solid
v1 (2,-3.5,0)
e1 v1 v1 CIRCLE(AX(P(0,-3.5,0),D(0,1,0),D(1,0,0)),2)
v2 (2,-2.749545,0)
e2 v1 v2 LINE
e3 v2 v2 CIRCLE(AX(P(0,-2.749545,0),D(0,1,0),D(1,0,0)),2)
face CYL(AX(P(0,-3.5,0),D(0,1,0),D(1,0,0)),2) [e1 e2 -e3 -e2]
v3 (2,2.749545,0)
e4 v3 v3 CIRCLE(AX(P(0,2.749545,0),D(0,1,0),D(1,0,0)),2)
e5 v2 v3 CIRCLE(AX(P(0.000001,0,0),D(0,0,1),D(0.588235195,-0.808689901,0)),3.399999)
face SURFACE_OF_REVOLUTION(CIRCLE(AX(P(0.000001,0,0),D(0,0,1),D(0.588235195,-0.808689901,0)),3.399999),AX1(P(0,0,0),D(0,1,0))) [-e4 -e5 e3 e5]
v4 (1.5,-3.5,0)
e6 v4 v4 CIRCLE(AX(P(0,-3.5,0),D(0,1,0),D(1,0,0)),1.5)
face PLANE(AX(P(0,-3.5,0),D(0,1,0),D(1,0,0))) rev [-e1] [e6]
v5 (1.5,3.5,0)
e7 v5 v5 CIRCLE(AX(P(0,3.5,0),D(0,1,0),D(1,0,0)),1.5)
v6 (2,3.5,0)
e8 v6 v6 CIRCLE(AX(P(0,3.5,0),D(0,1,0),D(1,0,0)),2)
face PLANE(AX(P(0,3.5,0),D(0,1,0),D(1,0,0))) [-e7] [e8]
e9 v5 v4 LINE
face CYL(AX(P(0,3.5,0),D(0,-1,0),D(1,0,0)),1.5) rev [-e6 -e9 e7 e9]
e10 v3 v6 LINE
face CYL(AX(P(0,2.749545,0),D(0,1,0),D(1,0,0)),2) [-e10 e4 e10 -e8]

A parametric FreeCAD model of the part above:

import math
import FreeCAD as App
import Part
import Sketcher

doc = App.newDocument("Part")
body = doc.addObject("PartDesign::Body", "Body")

# Sketch on XY plane
sketch1 = doc.addObject("Sketcher::SketchObject", "Sketch")
body.addObject(sketch1)
sketch1.AttachmentSupport = (doc.XY_Plane, [""])
sketch1.MapMode = "FlatFace"
sketch1.addGeometry([
    Part.LineSegment(App.Vector(2, -3.5, 0), App.Vector(2, -2.7, 0)),  # 0
    Part.ArcOfCircle(Part.Circle(App.Vector(0, 0, 0), App.Vector(0, 0, 1), 3.4), math.radians(-54), math.radians(54)),  # 1
    Part.LineSegment(App.Vector(2, 2.7, 0), App.Vector(2, 3.5, 0)),  # 2
    Part.LineSegment(App.Vector(2, 3.5, 0), App.Vector(1.5, 3.5, 0)),  # 3
    Part.LineSegment(App.Vector(1.5, 3.5, 0), App.Vector(1.5, -3.5, 0)),  # 4
    Part.LineSegment(App.Vector(1.5, -3.5, 0), App.Vector(2, -3.5, 0)),  # 5
], False)
sketch1.addConstraint([
    Sketcher.Constraint("Coincident", 0, 2, 1, 1),
    Sketcher.Constraint("Coincident", 1, 2, 2, 1),
    Sketcher.Constraint("Coincident", 2, 2, 3, 1),
    Sketcher.Constraint("Coincident", 3, 2, 4, 1),
    Sketcher.Constraint("Coincident", 4, 2, 5, 1),
    Sketcher.Constraint("Coincident", 5, 2, 0, 1),
    Sketcher.Constraint("Vertical", 0),
    Sketcher.Constraint("Vertical", 2),
    Sketcher.Constraint("Horizontal", 3),
    Sketcher.Constraint("Vertical", 4),
    Sketcher.Constraint("Horizontal", 5),
    Sketcher.Constraint("Coincident", 1, 3, -1, 1),
    Sketcher.Constraint("Symmetric", 2, 2, 5, 2, -1),
    Sketcher.Constraint("Radius", 1, 3.399999),
    Sketcher.Constraint("DistanceY", 4, 2, 4, 1, 7.0),
    Sketcher.Constraint("DistanceX", 3, 2, 3, 1, 0.5),
    Sketcher.Constraint("DistanceX", -1, 1, 0, 2, 2.0),
])
revolution = doc.addObject("PartDesign::Revolution", "Revolution")
body.addObject(revolution)
revolution.Profile = sketch1
revolution.ReferenceAxis = (sketch1, ["V_Axis"])
revolution.Angle = 360

doc.recompute()
